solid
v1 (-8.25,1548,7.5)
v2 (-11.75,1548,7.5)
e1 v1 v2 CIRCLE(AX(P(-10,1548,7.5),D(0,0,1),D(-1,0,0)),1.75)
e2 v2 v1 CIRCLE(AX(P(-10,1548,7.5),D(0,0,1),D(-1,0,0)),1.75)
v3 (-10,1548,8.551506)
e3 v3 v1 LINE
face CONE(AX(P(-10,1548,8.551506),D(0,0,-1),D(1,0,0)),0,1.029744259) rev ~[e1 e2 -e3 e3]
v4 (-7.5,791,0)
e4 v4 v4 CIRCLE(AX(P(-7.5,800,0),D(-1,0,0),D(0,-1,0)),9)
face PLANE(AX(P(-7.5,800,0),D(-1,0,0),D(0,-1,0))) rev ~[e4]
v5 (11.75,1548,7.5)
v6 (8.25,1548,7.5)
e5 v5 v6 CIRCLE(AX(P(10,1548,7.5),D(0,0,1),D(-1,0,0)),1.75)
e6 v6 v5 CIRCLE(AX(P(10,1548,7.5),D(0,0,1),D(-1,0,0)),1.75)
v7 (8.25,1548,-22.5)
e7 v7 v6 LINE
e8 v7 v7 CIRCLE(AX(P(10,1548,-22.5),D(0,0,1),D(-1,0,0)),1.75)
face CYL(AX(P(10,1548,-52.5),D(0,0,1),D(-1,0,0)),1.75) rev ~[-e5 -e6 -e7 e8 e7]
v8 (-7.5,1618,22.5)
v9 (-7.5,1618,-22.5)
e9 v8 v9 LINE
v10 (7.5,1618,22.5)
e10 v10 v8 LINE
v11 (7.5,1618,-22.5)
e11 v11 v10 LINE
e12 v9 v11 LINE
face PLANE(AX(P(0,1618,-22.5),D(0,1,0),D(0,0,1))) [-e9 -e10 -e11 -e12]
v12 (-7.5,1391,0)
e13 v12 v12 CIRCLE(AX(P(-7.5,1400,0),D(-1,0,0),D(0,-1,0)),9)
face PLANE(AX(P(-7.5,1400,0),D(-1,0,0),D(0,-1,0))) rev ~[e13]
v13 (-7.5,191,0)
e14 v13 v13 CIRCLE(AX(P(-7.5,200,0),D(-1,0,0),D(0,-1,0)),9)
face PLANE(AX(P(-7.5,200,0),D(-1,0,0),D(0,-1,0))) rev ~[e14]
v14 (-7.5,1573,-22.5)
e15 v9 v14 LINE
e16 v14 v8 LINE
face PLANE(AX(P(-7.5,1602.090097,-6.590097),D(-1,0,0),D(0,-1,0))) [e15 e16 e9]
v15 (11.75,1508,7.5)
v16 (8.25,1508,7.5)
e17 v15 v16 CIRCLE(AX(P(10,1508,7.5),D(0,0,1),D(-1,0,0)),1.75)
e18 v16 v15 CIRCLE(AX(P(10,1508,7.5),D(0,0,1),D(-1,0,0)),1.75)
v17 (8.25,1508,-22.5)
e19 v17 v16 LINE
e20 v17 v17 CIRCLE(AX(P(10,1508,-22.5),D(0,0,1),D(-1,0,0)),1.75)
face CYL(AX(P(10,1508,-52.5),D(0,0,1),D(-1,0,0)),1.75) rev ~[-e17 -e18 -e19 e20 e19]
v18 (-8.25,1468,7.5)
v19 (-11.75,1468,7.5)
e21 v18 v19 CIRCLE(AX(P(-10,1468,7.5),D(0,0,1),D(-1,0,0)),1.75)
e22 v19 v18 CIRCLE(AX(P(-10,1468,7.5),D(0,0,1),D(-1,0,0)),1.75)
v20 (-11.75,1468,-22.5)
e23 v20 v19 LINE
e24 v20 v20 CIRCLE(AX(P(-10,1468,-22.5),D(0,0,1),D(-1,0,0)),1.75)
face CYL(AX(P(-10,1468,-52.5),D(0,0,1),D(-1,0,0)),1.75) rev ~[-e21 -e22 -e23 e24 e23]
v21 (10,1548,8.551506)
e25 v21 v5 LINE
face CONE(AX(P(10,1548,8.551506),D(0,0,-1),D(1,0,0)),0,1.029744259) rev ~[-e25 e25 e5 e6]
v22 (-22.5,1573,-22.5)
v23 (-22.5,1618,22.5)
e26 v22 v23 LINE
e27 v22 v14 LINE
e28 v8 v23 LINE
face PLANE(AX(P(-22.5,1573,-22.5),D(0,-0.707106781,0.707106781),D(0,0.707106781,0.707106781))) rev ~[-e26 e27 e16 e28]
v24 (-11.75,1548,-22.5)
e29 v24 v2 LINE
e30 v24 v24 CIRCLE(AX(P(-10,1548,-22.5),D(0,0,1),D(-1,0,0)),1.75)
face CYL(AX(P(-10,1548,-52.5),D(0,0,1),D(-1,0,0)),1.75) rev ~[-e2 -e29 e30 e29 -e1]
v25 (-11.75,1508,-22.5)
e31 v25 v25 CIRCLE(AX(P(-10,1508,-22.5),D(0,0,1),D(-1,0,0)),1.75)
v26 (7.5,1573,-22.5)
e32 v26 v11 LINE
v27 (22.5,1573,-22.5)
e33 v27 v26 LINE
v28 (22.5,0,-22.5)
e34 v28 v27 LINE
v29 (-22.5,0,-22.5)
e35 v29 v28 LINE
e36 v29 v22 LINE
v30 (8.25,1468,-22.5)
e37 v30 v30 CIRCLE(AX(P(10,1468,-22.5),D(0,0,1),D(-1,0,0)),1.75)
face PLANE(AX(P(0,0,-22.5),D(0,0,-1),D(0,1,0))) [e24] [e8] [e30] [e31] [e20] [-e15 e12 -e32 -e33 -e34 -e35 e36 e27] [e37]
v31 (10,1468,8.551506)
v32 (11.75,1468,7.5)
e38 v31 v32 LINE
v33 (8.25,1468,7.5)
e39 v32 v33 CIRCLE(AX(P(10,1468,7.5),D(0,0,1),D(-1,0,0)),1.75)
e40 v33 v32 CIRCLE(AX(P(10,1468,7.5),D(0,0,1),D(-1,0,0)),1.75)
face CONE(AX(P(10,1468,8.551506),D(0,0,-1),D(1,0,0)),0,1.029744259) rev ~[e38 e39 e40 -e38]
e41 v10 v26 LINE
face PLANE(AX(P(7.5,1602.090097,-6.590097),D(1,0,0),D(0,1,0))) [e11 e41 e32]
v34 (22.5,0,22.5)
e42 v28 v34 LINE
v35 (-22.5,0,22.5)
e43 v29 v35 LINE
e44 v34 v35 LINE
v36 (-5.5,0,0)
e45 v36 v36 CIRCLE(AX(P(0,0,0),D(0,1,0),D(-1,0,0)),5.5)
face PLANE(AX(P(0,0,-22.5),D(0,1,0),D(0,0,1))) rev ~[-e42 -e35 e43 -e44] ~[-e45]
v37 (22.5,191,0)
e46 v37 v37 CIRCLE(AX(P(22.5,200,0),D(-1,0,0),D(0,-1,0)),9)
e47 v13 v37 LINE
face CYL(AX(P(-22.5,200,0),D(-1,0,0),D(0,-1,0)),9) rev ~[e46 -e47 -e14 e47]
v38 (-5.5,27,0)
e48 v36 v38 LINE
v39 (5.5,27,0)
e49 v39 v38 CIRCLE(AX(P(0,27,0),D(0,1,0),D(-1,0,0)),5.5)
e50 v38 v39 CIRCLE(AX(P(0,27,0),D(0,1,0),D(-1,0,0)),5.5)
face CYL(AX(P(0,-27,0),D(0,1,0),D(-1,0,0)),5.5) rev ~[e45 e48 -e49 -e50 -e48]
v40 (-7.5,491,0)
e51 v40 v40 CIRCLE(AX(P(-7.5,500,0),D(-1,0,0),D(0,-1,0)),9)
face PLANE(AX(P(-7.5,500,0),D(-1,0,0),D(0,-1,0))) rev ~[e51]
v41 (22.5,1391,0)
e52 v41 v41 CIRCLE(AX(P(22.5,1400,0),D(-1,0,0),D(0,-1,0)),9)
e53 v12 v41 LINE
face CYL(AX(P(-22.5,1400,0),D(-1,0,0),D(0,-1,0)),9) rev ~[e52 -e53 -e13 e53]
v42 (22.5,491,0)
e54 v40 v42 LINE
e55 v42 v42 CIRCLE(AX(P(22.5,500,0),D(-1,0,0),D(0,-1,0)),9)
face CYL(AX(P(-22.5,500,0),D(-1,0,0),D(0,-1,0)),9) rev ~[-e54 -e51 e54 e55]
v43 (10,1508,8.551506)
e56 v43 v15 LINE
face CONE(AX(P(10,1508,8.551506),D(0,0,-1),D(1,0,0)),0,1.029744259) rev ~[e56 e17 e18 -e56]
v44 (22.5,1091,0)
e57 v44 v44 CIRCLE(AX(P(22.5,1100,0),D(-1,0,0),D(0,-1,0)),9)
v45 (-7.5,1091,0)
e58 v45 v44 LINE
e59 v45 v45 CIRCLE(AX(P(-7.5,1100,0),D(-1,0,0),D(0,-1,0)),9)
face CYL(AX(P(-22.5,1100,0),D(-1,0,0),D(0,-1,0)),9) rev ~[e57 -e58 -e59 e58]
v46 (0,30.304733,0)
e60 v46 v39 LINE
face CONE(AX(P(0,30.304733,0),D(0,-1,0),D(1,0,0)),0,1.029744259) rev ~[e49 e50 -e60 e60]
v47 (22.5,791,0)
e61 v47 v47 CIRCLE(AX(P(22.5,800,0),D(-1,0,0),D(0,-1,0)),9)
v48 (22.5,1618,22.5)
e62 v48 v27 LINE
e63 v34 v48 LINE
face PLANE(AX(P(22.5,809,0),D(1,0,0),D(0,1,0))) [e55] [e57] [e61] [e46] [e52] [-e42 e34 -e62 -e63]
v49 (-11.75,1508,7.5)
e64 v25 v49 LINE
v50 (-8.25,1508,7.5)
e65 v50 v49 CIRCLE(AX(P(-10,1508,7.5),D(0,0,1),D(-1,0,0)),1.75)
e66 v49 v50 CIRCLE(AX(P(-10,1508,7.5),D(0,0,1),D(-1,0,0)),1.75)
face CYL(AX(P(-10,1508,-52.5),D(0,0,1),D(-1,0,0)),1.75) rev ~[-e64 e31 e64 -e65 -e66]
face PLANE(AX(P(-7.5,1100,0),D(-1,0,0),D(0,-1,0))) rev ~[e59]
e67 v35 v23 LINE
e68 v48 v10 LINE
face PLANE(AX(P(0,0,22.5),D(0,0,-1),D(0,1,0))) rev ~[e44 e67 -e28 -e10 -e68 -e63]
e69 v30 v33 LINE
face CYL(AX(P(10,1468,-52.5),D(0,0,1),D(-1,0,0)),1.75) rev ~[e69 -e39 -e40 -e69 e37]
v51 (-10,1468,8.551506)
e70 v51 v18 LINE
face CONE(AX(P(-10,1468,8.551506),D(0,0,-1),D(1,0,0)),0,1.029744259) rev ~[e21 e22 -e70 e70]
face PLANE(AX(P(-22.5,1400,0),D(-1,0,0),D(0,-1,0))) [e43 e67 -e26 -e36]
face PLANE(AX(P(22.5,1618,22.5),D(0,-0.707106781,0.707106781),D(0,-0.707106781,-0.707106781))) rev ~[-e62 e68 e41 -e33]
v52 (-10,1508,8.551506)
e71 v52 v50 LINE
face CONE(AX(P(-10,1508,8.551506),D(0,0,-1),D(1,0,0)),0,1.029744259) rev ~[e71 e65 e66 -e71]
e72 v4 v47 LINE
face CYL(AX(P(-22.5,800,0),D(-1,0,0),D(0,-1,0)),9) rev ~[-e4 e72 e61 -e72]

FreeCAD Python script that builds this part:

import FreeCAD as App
import Part
import Sketcher

V = App.Vector


def add_polygon(sketch, points):
    """Adds a closed chain of lines whose ends are joined by coincident constraints."""
    first, n = sketch.GeometryCount, len(points)
    for a, b in zip(points, points[1:] + points[:1]):
        sketch.addGeometry(Part.LineSegment(App.Vector(*a, 0), App.Vector(*b, 0)), False)
    for i in range(n):
        sketch.addConstraint(Sketcher.Constraint("Coincident", first + i, 2, first + (i + 1) % n, 1))

doc = App.newDocument("Part")
body = doc.addObject("PartDesign::Body", "Body")

sketch1 = body.newObject("Sketcher::SketchObject", "Sketch")
sketch1.AttachmentSupport = (doc.getObject("YZ_Plane"), [""])
sketch1.MapMode = "FlatFace"
add_polygon(sketch1, [(0, 22), (0, -22), (1618, -22), (1618, 22)])
sketch1.addConstraint([
    Sketcher.Constraint("Vertical", 0),
    Sketcher.Constraint("Horizontal", 1),
    Sketcher.Constraint("Vertical", 2),
    Sketcher.Constraint("Horizontal", 3),
    Sketcher.Constraint("Symmetric", 0, 2, 3, 2, -1, 1),
    Sketcher.Constraint("DistanceX", 1, 1, 1, 2, 1618.0),
    Sketcher.Constraint("DistanceY", 0, 2, 0, 1, 45.0),
])
pad1 = body.newObject("PartDesign::Pad", "Pad")
pad1.Profile = sketch1
pad1.Length = 45
pad1.Midplane = True

sketch2 = body.newObject("Sketcher::SketchObject", "Sketch001")
sketch2.AttachmentSupport = (doc.getObject("XZ_Plane"), [""])
sketch2.MapMode = "FlatFace"
sketch2.addGeometry(Part.Circle(V(0, 0, 0), V(0, 0, 1), 6), False)
sketch2.addConstraint([
    Sketcher.Constraint("Coincident", 0, 3, -1, 1),
    Sketcher.Constraint("Diameter", 0, 11.0),
])
doc.recompute()
hole = body.newObject("PartDesign::Hole", "Hole")
hole.Profile = sketch2
hole.ThreadType = "None"
hole.Diameter = 11
hole.DepthType = "Dimension"
hole.Depth = 27
hole.DrillPoint = "Angled"
hole.DrillPointAngle = 118

sketch3 = body.newObject("Sketcher::SketchObject", "Sketch002")
sketch3.AttachmentSupport = (doc.getObject("YZ_Plane"), [""])
sketch3.MapMode = "FlatFace"
sketch3.AttachmentOffset = App.Placement(V(0, 0, 22.5), App.Rotation())
add_polygon(sketch3, [(1618, -22), (1618, 22), (1573, -22)])
sketch3.addConstraint([
    Sketcher.Constraint("Vertical", 0),
    Sketcher.Constraint("Horizontal", 2),
    Sketcher.Constraint("Equal", 2, 0),
    Sketcher.Constraint("DistanceX", 2, 1, 2, 2, 45.0),
    Sketcher.Constraint("DistanceX", -1, 1, 0, 2, 1618.0),
    Sketcher.Constraint("DistanceY", -1, 1, 0, 2, 22.5),
])
pocket1 = body.newObject("PartDesign::Pocket", "Pocket")
pocket1.Profile = sketch3
pocket1.Length = 15

sketch4 = body.newObject("Sketcher::SketchObject", "Sketch003")
sketch4.AttachmentSupport = (doc.getObject("YZ_Plane"), [""])
sketch4.MapMode = "FlatFace"
sketch4.AttachmentOffset = App.Placement(V(0, 0, -22.5), App.Rotation())
add_polygon(sketch4, [(1573, -22), (1618, 22), (1618, -22)])
sketch4.addConstraint([
    Sketcher.Constraint("Vertical", 1),
    Sketcher.Constraint("Horizontal", 2),
    Sketcher.Constraint("Equal", 2, 1),
    Sketcher.Constraint("DistanceX", 2, 2, 2, 1, 45.0),
    Sketcher.Constraint("DistanceX", -1, 1, 0, 2, 1618.0),
    Sketcher.Constraint("DistanceY", -1, 1, 0, 2, 22.5),
])
pocket2 = body.newObject("PartDesign::Pocket", "Pocket001")
pocket2.Profile = sketch4
pocket2.Length = 15
pocket2.Reversed = True

sketch5 = body.newObject("Sketcher::SketchObject", "Sketch004")
sketch5.AttachmentSupport = (doc.getObject("YZ_Plane"), [""])
sketch5.MapMode = "FlatFace"
sketch5.AttachmentOffset = App.Placement(V(0, 0, -22.5), App.Rotation())
sketch5.addGeometry([
    Part.Circle(V(200, 0, 0), V(0, 0, 1), 9),
    Part.Circle(V(500, 0, 0), V(0, 0, 1), 9),
    Part.Circle(V(800, 0, 0), V(0, 0, 1), 9),
    Part.Circle(V(1100, 0, 0), V(0, 0, 1), 9),
    Part.Circle(V(1400, 0, 0), V(0, 0, 1), 9),
], False)
sketch5.addConstraint([
    Sketcher.Constraint("Equal", 0, 1),
    Sketcher.Constraint("Equal", 1, 2),
    Sketcher.Constraint("Equal", 2, 3),
    Sketcher.Constraint("Equal", 3, 4),
    Sketcher.Constraint("PointOnObject", 0, 3, -1),
    Sketcher.Constraint("PointOnObject", 1, 3, -1),
    Sketcher.Constraint("PointOnObject", 2, 3, -1),
    Sketcher.Constraint("PointOnObject", 3, 3, -1),
    Sketcher.Constraint("PointOnObject", 4, 3, -1),
    Sketcher.Constraint("Diameter", 0, 18.0),
    Sketcher.Constraint("DistanceX", -1, 1, 0, 3, 200.0),
    Sketcher.Constraint("DistanceX", -1, 1, 1, 3, 500.0),
    Sketcher.Constraint("DistanceX", -1, 1, 2, 3, 800.0),
    Sketcher.Constraint("DistanceX", -1, 1, 3, 3, 1100.0),
    Sketcher.Constraint("DistanceX", -1, 1, 4, 3, 1400.0),
])
pocket3 = body.newObject("PartDesign::Pocket", "Pocket002")
pocket3.Profile = sketch5
pocket3.Type = "ThroughAll"
pocket3.Reversed = True

sketch6 = body.newObject("Sketcher::SketchObject", "Sketch005")
sketch6.AttachmentSupport = (doc.getObject("YZ_Plane"), [""])
sketch6.MapMode = "FlatFace"
sketch6.AttachmentOffset = App.Placement(V(0, 0, -22.5), App.Rotation())
sketch6.addGeometry([
    Part.Circle(V(1400, 0, 0), V(0, 0, 1), 9),
    Part.Circle(V(1100, 0, 0), V(0, 0, 1), 9),
    Part.Circle(V(800, 0, 0), V(0, 0, 1), 9),
    Part.Circle(V(500, 0, 0), V(0, 0, 1), 9),
    Part.Circle(V(200, 0, 0), V(0, 0, 1), 9),
], False)
sketch6.addConstraint([
    Sketcher.Constraint("Equal", 0, 1),
    Sketcher.Constraint("Equal", 1, 2),
    Sketcher.Constraint("Equal", 2, 3),
    Sketcher.Constraint("Equal", 3, 4),
    Sketcher.Constraint("PointOnObject", 0, 3, -1),
    Sketcher.Constraint("PointOnObject", 1, 3, -1),
    Sketcher.Constraint("PointOnObject", 2, 3, -1),
    Sketcher.Constraint("PointOnObject", 3, 3, -1),
    Sketcher.Constraint("PointOnObject", 4, 3, -1),
    Sketcher.Constraint("Diameter", 0, 18.0),
    Sketcher.Constraint("DistanceX", -1, 1, 0, 3, 1400.0),
    Sketcher.Constraint("DistanceX", -1, 1, 1, 3, 1100.0),
    Sketcher.Constraint("DistanceX", -1, 1, 2, 3, 800.0),
    Sketcher.Constraint("DistanceX", -1, 1, 3, 3, 500.0),
    Sketcher.Constraint("DistanceX", -1, 1, 4, 3, 200.0),
])
pad2 = body.newObject("PartDesign::Pad", "Pad001")
pad2.Profile = sketch6
pad2.Length = 15

sketch7 = body.newObject("Sketcher::SketchObject", "Sketch006")
sketch7.AttachmentSupport = (doc.getObject("XY_Plane"), [""])
sketch7.MapMode = "FlatFace"
sketch7.AttachmentOffset = App.Placement(V(0, 0, -22.5), App.Rotation())
sketch7.addGeometry([
    Part.Circle(V(10, 1548, 0), V(0, 0, 1), 1.8),
    Part.Circle(V(10, 1508, 0), V(0, 0, 1), 1.8),
    Part.Circle(V(10, 1468, 0), V(0, 0, 1), 1.8),
    Part.Circle(V(-10, 1468, 0), V(0, 0, 1), 1.8),
    Part.Circle(V(-10, 1508, 0), V(0, 0, 1), 1.8),
    Part.Circle(V(-10, 1548, 0), V(0, 0, 1), 1.8),
], False)
sketch7.addConstraint([
    Sketcher.Constraint("Equal", 0, 1),
    Sketcher.Constraint("Equal", 1, 2),
    Sketcher.Constraint("Equal", 2, 3),
    Sketcher.Constraint("Equal", 3, 4),
    Sketcher.Constraint("Equal", 4, 5),
    Sketcher.Constraint("Symmetric", 2, 3, 3, 3, -2),
    Sketcher.Constraint("Symmetric", 1, 3, 4, 3, -2),
    Sketcher.Constraint("Symmetric", 0, 3, 5, 3, -2),
    Sketcher.Constraint("Vertical", 0, 3, 1, 3),
    Sketcher.Constraint("Vertical", 1, 3, 2, 3),
    Sketcher.Constraint("Diameter", 0, 3.5),
    Sketcher.Constraint("DistanceX", -1, 1, 0, 3, 10.0),
    Sketcher.Constraint("DistanceY", -1, 1, 0, 3, 1548.0),
    Sketcher.Constraint("DistanceY", -1, 1, 1, 3, 1508.0),
    Sketcher.Constraint("DistanceY", -1, 1, 2, 3, 1468.0),
])
doc.recompute()
hole2 = body.newObject("PartDesign::Hole", "Hole001")
hole2.Profile = sketch7
hole2.ThreadType = "None"
hole2.Diameter = 3.5
hole2.DepthType = "Dimension"
hole2.Depth = 30
hole2.DrillPoint = "Angled"
hole2.DrillPointAngle = 118
hole2.Reversed = True

doc.recompute()
